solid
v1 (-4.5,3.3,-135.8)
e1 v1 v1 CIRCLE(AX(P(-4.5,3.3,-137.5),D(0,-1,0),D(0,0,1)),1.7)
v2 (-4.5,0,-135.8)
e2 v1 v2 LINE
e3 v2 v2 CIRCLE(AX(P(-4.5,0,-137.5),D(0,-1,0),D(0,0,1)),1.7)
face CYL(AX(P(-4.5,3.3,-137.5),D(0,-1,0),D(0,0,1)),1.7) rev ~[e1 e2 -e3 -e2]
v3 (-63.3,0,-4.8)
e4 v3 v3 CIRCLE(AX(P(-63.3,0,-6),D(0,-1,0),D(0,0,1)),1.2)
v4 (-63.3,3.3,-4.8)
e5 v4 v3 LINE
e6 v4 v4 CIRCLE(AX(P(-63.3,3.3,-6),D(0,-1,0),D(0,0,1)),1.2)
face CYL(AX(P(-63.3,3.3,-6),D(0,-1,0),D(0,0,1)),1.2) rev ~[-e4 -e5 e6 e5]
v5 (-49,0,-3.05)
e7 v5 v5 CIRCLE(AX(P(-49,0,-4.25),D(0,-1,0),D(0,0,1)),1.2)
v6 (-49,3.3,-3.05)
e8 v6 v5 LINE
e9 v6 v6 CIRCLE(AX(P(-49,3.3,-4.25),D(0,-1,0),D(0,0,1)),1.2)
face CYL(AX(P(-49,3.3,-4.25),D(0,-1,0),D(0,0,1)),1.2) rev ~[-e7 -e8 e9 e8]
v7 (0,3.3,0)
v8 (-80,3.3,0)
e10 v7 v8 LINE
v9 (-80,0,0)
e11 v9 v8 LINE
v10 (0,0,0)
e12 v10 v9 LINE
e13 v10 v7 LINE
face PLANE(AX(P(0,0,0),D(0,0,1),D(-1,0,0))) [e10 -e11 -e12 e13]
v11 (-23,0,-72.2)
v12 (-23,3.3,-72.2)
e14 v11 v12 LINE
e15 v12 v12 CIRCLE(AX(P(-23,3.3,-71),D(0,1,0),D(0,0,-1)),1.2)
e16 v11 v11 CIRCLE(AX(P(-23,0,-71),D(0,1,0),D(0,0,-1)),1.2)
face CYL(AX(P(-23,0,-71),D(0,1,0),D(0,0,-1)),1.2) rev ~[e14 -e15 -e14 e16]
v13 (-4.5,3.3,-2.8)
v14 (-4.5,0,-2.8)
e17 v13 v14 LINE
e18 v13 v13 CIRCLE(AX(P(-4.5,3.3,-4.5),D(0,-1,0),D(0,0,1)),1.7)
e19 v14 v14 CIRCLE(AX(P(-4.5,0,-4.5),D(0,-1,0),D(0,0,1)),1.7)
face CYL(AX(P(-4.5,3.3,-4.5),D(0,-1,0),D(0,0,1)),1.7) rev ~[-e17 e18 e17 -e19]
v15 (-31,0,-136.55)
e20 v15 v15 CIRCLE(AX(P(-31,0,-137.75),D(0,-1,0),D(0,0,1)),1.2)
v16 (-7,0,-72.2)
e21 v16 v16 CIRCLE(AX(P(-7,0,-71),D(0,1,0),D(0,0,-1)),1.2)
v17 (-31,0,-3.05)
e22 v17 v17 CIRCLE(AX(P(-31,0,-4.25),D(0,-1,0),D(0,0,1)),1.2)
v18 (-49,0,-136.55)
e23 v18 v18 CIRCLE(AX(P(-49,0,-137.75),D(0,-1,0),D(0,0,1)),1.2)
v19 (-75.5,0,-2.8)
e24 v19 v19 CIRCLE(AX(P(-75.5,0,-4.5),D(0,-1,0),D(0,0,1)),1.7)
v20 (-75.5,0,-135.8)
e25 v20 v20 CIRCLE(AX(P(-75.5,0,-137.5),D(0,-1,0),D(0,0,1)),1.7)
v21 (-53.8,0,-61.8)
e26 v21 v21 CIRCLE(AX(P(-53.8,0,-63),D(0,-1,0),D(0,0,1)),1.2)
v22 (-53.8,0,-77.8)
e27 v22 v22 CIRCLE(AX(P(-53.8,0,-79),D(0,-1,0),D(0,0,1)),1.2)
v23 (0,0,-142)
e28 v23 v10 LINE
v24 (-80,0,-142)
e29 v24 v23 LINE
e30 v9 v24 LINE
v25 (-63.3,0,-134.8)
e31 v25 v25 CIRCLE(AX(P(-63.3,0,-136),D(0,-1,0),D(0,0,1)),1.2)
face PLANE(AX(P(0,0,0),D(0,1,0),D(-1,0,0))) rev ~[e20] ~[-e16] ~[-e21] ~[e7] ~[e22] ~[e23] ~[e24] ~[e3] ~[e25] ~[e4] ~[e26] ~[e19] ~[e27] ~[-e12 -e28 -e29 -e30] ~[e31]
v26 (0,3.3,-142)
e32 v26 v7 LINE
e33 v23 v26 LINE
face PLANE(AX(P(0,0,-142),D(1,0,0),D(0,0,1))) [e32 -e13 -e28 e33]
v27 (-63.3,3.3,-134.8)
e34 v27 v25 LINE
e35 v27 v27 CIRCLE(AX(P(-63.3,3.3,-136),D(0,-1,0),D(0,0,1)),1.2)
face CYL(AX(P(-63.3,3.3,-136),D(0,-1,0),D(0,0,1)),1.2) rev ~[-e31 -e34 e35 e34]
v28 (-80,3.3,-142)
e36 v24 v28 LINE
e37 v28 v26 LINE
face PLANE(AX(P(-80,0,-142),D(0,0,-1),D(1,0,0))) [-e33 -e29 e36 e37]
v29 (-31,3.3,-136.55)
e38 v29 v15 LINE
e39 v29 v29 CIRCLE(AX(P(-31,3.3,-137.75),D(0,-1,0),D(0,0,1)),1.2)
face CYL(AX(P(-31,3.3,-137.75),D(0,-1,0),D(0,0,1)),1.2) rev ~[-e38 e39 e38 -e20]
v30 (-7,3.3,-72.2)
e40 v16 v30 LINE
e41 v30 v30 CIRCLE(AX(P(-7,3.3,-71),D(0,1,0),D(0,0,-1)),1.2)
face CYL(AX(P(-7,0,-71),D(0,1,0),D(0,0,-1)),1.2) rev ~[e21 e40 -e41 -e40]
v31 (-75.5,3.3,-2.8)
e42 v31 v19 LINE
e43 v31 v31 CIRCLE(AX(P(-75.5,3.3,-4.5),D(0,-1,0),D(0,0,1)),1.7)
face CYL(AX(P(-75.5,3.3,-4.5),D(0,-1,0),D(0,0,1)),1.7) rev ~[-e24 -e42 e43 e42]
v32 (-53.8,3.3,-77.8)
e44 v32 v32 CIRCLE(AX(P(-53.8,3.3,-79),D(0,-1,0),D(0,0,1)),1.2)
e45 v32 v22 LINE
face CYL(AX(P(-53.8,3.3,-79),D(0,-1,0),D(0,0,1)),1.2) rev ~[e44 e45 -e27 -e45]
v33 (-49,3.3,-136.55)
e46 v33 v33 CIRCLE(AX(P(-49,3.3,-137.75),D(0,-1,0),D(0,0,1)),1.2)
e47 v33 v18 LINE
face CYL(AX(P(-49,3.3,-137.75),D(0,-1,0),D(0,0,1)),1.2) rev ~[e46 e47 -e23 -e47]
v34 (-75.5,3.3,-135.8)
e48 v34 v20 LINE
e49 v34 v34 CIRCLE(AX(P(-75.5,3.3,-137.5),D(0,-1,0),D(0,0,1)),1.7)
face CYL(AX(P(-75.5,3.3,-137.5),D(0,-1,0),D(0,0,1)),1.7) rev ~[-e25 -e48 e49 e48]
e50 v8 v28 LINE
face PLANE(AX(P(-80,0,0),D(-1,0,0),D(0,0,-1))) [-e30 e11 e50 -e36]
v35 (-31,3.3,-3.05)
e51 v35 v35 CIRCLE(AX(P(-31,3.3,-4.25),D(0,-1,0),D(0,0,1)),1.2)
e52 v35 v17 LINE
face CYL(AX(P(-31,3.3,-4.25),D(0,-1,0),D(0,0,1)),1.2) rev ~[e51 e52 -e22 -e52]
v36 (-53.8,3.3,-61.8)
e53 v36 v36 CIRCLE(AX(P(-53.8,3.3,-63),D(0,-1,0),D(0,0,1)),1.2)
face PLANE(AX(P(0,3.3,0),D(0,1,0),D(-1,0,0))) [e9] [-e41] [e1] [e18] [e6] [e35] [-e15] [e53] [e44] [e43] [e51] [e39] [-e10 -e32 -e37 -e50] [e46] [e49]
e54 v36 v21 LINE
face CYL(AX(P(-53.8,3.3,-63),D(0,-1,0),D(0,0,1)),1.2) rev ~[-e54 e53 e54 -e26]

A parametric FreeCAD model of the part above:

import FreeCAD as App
import Part
import Sketcher

V = App.Vector

doc = App.newDocument("Part")
body = doc.addObject("PartDesign::Body", "Body")

sketch1 = doc.addObject("Sketcher::SketchObject", "Sketch")
body.addObject(sketch1)
sketch1.AttachmentSupport = (doc.XZ_Plane, [""])
sketch1.MapMode = "FlatFace"
sketch1.addGeometry(Part.LineSegment(V(-80, 0, 0), V(0, 0, 0)), False)
sketch1.addGeometry(Part.LineSegment(V(0, 0, 0), V(0, -142, 0)), False)
sketch1.addGeometry(Part.LineSegment(V(0, -142, 0), V(-80, -142, 0)), False)
sketch1.addGeometry(Part.LineSegment(V(-80, -142, 0), V(-80, 0, 0)), False)
sketch1.addConstraint(Sketcher.Constraint("Coincident", 0, 2, 1, 1))
sketch1.addConstraint(Sketcher.Constraint("Coincident", 1, 2, 2, 1))
sketch1.addConstraint(Sketcher.Constraint("Coincident", 2, 2, 3, 1))
sketch1.addConstraint(Sketcher.Constraint("Coincident", 3, 2, 0, 1))
sketch1.addConstraint(Sketcher.Constraint("Horizontal", 0))
sketch1.addConstraint(Sketcher.Constraint("Vertical", 1))
sketch1.addConstraint(Sketcher.Constraint("Horizontal", 2))
sketch1.addConstraint(Sketcher.Constraint("Vertical", 3))
sketch1.addConstraint(Sketcher.Constraint("Coincident", 0, 2, -1, 1))
sketch1.addConstraint(Sketcher.Constraint("DistanceX", 0, 1, 0, 2, 80.0))
sketch1.addConstraint(Sketcher.Constraint("DistanceY", 1, 2, 1, 1, 142.0))
pad1 = doc.addObject("PartDesign::Pad", "Pad")
body.addObject(pad1)
pad1.Profile = sketch1
pad1.Length = 3.3
pad1.Reversed = True

sketch2 = doc.addObject("Sketcher::SketchObject", "Sketch001")
body.addObject(sketch2)
sketch2.AttachmentSupport = (doc.XZ_Plane, [""])
sketch2.MapMode = "FlatFace"
sketch2.AttachmentOffset = App.Placement(V(0, 0, -3.3), App.Rotation())
sketch2.addGeometry(Part.Circle(V(-75.5, -4.5, 0), V(0, 0, 1), 1.7), False)
sketch2.addConstraint(Sketcher.Constraint("Diameter", 0, 3.4))
sketch2.addConstraint(Sketcher.Constraint("DistanceX", 0, 3, -1, 1, 75.5))
sketch2.addConstraint(Sketcher.Constraint("DistanceY", 0, 3, -1, 1, 4.5))
doc.recompute()
hole = doc.addObject("PartDesign::Hole", "Hole")
body.addObject(hole)
hole.Profile = sketch2
hole.ThreadType = "None"
hole.Diameter = 3.4
hole.DepthType = "ThroughAll"
hole.Reversed = True

sketch3 = doc.addObject("Sketcher::SketchObject", "Sketch002")
body.addObject(sketch3)
sketch3.AttachmentSupport = (doc.XZ_Plane, [""])
sketch3.MapMode = "FlatFace"
sketch3.AttachmentOffset = App.Placement(V(0, 0, -3.3), App.Rotation())
sketch3.addGeometry(Part.Circle(V(-4.5, -4.5, 0), V(0, 0, 1), 1.7), False)
sketch3.addConstraint(Sketcher.Constraint("Diameter", 0, 3.4))
sketch3.addConstraint(Sketcher.Constraint("DistanceX", 0, 3, -1, 1, 4.5))
sketch3.addConstraint(Sketcher.Constraint("DistanceY", 0, 3, -1, 1, 4.5))
doc.recompute()
hole2 = doc.addObject("PartDesign::Hole", "Hole001")
body.addObject(hole2)
hole2.Profile = sketch3
hole2.ThreadType = "None"
hole2.Diameter = 3.4
hole2.DepthType = "ThroughAll"
hole2.Reversed = True

sketch4 = doc.addObject("Sketcher::SketchObject", "Sketch003")
body.addObject(sketch4)
sketch4.AttachmentSupport = (doc.XZ_Plane, [""])
sketch4.MapMode = "FlatFace"
sketch4.AttachmentOffset = App.Placement(V(0, 0, -3.3), App.Rotation())
sketch4.addGeometry(Part.Circle(V(-4.5, -137.5, 0), V(0, 0, 1), 1.7), False)
sketch4.addConstraint(Sketcher.Constraint("Diameter", 0, 3.4))
sketch4.addConstraint(Sketcher.Constraint("DistanceX", 0, 3, -1, 1, 4.5))
sketch4.addConstraint(Sketcher.Constraint("DistanceY", 0, 3, -1, 1, 137.5))
doc.recompute()
hole3 = doc.addObject("PartDesign::Hole", "Hole002")
body.addObject(hole3)
hole3.Profile = sketch4
hole3.ThreadType = "None"
hole3.Diameter = 3.4
hole3.DepthType = "ThroughAll"
hole3.Reversed = True

sketch5 = doc.addObject("Sketcher::SketchObject", "Sketch004")
body.addObject(sketch5)
sketch5.AttachmentSupport = (doc.XZ_Plane, [""])
sketch5.MapMode = "FlatFace"
sketch5.AttachmentOffset = App.Placement(V(0, 0, -3.3), App.Rotation())
sketch5.addGeometry(Part.Circle(V(-75.5, -137.5, 0), V(0, 0, 1), 1.7), False)
sketch5.addConstraint(Sketcher.Constraint("Diameter", 0, 3.4))
sketch5.addConstraint(Sketcher.Constraint("DistanceX", 0, 3, -1, 1, 75.5))
sketch5.addConstraint(Sketcher.Constraint("DistanceY", 0, 3, -1, 1, 137.5))
doc.recompute()
hole4 = doc.addObject("PartDesign::Hole", "Hole003")
body.addObject(hole4)
hole4.Profile = sketch5
hole4.ThreadType = "None"
hole4.Diameter = 3.4
hole4.DepthType = "ThroughAll"
hole4.Reversed = True

sketch6 = doc.addObject("Sketcher::SketchObject", "Sketch005")
body.addObject(sketch6)
sketch6.AttachmentSupport = (doc.XZ_Plane, [""])
sketch6.MapMode = "FlatFace"
sketch6.AttachmentOffset = App.Placement(V(0, 0, -3.3), App.Rotation())
sketch6.addGeometry(Part.Circle(V(-49, -137.8, 0), V(0, 0, 1), 1.2), False)
sketch6.addConstraint(Sketcher.Constraint("Diameter", 0, 2.4))
sketch6.addConstraint(Sketcher.Constraint("DistanceX", 0, 3, -1, 1, 49.0))
sketch6.addConstraint(Sketcher.Constraint("DistanceY", 0, 3, -1, 1, 137.75))
doc.recompute()
hole5 = doc.addObject("PartDesign::Hole", "Hole004")
body.addObject(hole5)
hole5.Profile = sketch6
hole5.ThreadType = "None"
hole5.Diameter = 2.4
hole5.DepthType = "ThroughAll"
hole5.Reversed = True

sketch7 = doc.addObject("Sketcher::SketchObject", "Sketch006")
body.addObject(sketch7)
sketch7.AttachmentSupport = (doc.XZ_Plane, [""])
sketch7.MapMode = "FlatFace"
sketch7.AttachmentOffset = App.Placement(V(0, 0, -3.3), App.Rotation())
sketch7.addGeometry(Part.Circle(V(-31, -137.8, 0), V(0, 0, 1), 1.2), False)
sketch7.addConstraint(Sketcher.Constraint("Diameter", 0, 2.4))
sketch7.addConstraint(Sketcher.Constraint("DistanceX", 0, 3, -1, 1, 31.0))
sketch7.addConstraint(Sketcher.Constraint("DistanceY", 0, 3, -1, 1, 137.75))
doc.recompute()
hole6 = doc.addObject("PartDesign::Hole", "Hole005")
body.addObject(hole6)
hole6.Profile = sketch7
hole6.ThreadType = "None"
hole6.Diameter = 2.4
hole6.DepthType = "ThroughAll"
hole6.Reversed = True

sketch8 = doc.addObject("Sketcher::SketchObject", "Sketch007")
body.addObject(sketch8)
sketch8.AttachmentSupport = (doc.XZ_Plane, [""])
sketch8.MapMode = "FlatFace"
sketch8.AttachmentOffset = App.Placement(V(0, 0, -3.3), App.Rotation())
sketch8.addGeometry(Part.Circle(V(-31, -4.2, 0), V(0, 0, 1), 1.2), False)
sketch8.addConstraint(Sketcher.Constraint("Diameter", 0, 2.4))
sketch8.addConstraint(Sketcher.Constraint("DistanceX", 0, 3, -1, 1, 31.0))
sketch8.addConstraint(Sketcher.Constraint("DistanceY", 0, 3, -1, 1, 4.25))
doc.recompute()
hole7 = doc.addObject("PartDesign::Hole", "Hole006")
body.addObject(hole7)
hole7.Profile = sketch8
hole7.ThreadType = "None"
hole7.Diameter = 2.4
hole7.DepthType = "ThroughAll"
hole7.Reversed = True

sketch9 = doc.addObject("Sketcher::SketchObject", "Sketch008")
body.addObject(sketch9)
sketch9.AttachmentSupport = (doc.XZ_Plane, [""])
sketch9.MapMode = "FlatFace"
sketch9.AttachmentOffset = App.Placement(V(0, 0, -3.3), App.Rotation())
sketch9.addGeometry(Part.Circle(V(-49, -4.2, 0), V(0, 0, 1), 1.2), False)
sketch9.addConstraint(Sketcher.Constraint("Diameter", 0, 2.4))
sketch9.addConstraint(Sketcher.Constraint("DistanceX", 0, 3, -1, 1, 49.0))
sketch9.addConstraint(Sketcher.Constraint("DistanceY", 0, 3, -1, 1, 4.25))
doc.recompute()
hole8 = doc.addObject("PartDesign::Hole", "Hole007")
body.addObject(hole8)
hole8.Profile = sketch9
hole8.ThreadType = "None"
hole8.Diameter = 2.4
hole8.DepthType = "ThroughAll"
hole8.Reversed = True

sketch10 = doc.addObject("Sketcher::SketchObject", "Sketch009")
body.addObject(sketch10)
sketch10.AttachmentSupport = (doc.XZ_Plane, [""])
sketch10.MapMode = "FlatFace"
sketch10.addGeometry(Part.Circle(V(-7, -71, 0), V(0, 0, 1), 1.2), False)
sketch10.addConstraint(Sketcher.Constraint("Diameter", 0, 2.4))
sketch10.addConstraint(Sketcher.Constraint("DistanceX", 0, 3, -1, 1, 7.0))
sketch10.addConstraint(Sketcher.Constraint("DistanceY", 0, 3, -1, 1, 71.0))
doc.recompute()
hole9 = doc.addObject("PartDesign::Hole", "Hole008")
body.addObject(hole9)
hole9.Profile = sketch10
hole9.ThreadType = "None"
hole9.Diameter = 2.4
hole9.DepthType = "ThroughAll"

sketch11 = doc.addObject("Sketcher::SketchObject", "Sketch010")
body.addObject(sketch11)
sketch11.AttachmentSupport = (doc.XZ_Plane, [""])
sketch11.MapMode = "FlatFace"
sketch11.addGeometry(Part.Circle(V(-23, -71, 0), V(0, 0, 1), 1.2), False)
sketch11.addConstraint(Sketcher.Constraint("Diameter", 0, 2.4))
sketch11.addConstraint(Sketcher.Constraint("DistanceX", 0, 3, -1, 1, 23.0))
sketch11.addConstraint(Sketcher.Constraint("DistanceY", 0, 3, -1, 1, 71.0))
doc.recompute()
hole10 = doc.addObject("PartDesign::Hole", "Hole009")
body.addObject(hole10)
hole10.Profile = sketch11
hole10.ThreadType = "None"
hole10.Diameter = 2.4
hole10.DepthType = "ThroughAll"

sketch12 = doc.addObject("Sketcher::SketchObject", "Sketch011")
body.addObject(sketch12)
sketch12.AttachmentSupport = (doc.XZ_Plane, [""])
sketch12.MapMode = "FlatFace"
sketch12.AttachmentOffset = App.Placement(V(0, 0, -3.3), App.Rotation())
sketch12.addGeometry(Part.Circle(V(-63.3, -6, 0), V(0, 0, 1), 1.2), False)
sketch12.addConstraint(Sketcher.Constraint("Diameter", 0, 2.4))
sketch12.addConstraint(Sketcher.Constraint("DistanceY", 0, 3, -1, 1, 6.0))
sketch12.addConstraint(Sketcher.Constraint("DistanceX", 0, 3, -1, 1, 63.3))
doc.recompute()
hole11 = doc.addObject("PartDesign::Hole", "Hole010")
body.addObject(hole11)
hole11.Profile = sketch12
hole11.ThreadType = "None"
hole11.Diameter = 2.4
hole11.DepthType = "ThroughAll"
hole11.Reversed = True

sketch13 = doc.addObject("Sketcher::SketchObject", "Sketch012")
body.addObject(sketch13)
sketch13.AttachmentSupport = (doc.XZ_Plane, [""])
sketch13.MapMode = "FlatFace"
sketch13.AttachmentOffset = App.Placement(V(0, 0, -3.3), App.Rotation())
sketch13.addGeometry(Part.Circle(V(-53.8, -63, 0), V(0, 0, 1), 1.2), False)
sketch13.addConstraint(Sketcher.Constraint("Diameter", 0, 2.4))
sketch13.addConstraint(Sketcher.Constraint("DistanceY", 0, 3, -1, 1, 63.0))
sketch13.addConstraint(Sketcher.Constraint("DistanceX", 0, 3, -1, 1, 53.8))
doc.recompute()
hole12 = doc.addObject("PartDesign::Hole", "Hole011")
body.addObject(hole12)
hole12.Profile = sketch13
hole12.ThreadType = "None"
hole12.Diameter = 2.4
hole12.DepthType = "ThroughAll"
hole12.Reversed = True

sketch14 = doc.addObject("Sketcher::SketchObject", "Sketch013")
body.addObject(sketch14)
sketch14.AttachmentSupport = (doc.XZ_Plane, [""])
sketch14.MapMode = "FlatFace"
sketch14.AttachmentOffset = App.Placement(V(0, 0, -3.3), App.Rotation())
sketch14.addGeometry(Part.Circle(V(-63.3, -136, 0), V(0, 0, 1), 1.2), False)
sketch14.addGeometry(Part.Circle(V(-53.8, -79, 0), V(0, 0, 1), 1.2), False)
sketch14.addConstraint(Sketcher.Constraint("Equal", 0, 1))
sketch14.addConstraint(Sketcher.Constraint("Diameter", 0, 2.4))
sketch14.addConstraint(Sketcher.Constraint("DistanceY", 0, 3, -1, 1, 136.0))
sketch14.addConstraint(Sketcher.Constraint("DistanceY", 1, 3, -1, 1, 79.0))
sketch14.addConstraint(Sketcher.Constraint("DistanceX", 0, 3, -1, 1, 63.3))
sketch14.addConstraint(Sketcher.Constraint("DistanceX", 1, 3, -1, 1, 53.8))
doc.recompute()
hole13 = doc.addObject("PartDesign::Hole", "Hole012")
body.addObject(hole13)
hole13.Profile = sketch14
hole13.ThreadType = "None"
hole13.Diameter = 2.4
hole13.DepthType = "ThroughAll"
hole13.Reversed = True

doc.recompute()
